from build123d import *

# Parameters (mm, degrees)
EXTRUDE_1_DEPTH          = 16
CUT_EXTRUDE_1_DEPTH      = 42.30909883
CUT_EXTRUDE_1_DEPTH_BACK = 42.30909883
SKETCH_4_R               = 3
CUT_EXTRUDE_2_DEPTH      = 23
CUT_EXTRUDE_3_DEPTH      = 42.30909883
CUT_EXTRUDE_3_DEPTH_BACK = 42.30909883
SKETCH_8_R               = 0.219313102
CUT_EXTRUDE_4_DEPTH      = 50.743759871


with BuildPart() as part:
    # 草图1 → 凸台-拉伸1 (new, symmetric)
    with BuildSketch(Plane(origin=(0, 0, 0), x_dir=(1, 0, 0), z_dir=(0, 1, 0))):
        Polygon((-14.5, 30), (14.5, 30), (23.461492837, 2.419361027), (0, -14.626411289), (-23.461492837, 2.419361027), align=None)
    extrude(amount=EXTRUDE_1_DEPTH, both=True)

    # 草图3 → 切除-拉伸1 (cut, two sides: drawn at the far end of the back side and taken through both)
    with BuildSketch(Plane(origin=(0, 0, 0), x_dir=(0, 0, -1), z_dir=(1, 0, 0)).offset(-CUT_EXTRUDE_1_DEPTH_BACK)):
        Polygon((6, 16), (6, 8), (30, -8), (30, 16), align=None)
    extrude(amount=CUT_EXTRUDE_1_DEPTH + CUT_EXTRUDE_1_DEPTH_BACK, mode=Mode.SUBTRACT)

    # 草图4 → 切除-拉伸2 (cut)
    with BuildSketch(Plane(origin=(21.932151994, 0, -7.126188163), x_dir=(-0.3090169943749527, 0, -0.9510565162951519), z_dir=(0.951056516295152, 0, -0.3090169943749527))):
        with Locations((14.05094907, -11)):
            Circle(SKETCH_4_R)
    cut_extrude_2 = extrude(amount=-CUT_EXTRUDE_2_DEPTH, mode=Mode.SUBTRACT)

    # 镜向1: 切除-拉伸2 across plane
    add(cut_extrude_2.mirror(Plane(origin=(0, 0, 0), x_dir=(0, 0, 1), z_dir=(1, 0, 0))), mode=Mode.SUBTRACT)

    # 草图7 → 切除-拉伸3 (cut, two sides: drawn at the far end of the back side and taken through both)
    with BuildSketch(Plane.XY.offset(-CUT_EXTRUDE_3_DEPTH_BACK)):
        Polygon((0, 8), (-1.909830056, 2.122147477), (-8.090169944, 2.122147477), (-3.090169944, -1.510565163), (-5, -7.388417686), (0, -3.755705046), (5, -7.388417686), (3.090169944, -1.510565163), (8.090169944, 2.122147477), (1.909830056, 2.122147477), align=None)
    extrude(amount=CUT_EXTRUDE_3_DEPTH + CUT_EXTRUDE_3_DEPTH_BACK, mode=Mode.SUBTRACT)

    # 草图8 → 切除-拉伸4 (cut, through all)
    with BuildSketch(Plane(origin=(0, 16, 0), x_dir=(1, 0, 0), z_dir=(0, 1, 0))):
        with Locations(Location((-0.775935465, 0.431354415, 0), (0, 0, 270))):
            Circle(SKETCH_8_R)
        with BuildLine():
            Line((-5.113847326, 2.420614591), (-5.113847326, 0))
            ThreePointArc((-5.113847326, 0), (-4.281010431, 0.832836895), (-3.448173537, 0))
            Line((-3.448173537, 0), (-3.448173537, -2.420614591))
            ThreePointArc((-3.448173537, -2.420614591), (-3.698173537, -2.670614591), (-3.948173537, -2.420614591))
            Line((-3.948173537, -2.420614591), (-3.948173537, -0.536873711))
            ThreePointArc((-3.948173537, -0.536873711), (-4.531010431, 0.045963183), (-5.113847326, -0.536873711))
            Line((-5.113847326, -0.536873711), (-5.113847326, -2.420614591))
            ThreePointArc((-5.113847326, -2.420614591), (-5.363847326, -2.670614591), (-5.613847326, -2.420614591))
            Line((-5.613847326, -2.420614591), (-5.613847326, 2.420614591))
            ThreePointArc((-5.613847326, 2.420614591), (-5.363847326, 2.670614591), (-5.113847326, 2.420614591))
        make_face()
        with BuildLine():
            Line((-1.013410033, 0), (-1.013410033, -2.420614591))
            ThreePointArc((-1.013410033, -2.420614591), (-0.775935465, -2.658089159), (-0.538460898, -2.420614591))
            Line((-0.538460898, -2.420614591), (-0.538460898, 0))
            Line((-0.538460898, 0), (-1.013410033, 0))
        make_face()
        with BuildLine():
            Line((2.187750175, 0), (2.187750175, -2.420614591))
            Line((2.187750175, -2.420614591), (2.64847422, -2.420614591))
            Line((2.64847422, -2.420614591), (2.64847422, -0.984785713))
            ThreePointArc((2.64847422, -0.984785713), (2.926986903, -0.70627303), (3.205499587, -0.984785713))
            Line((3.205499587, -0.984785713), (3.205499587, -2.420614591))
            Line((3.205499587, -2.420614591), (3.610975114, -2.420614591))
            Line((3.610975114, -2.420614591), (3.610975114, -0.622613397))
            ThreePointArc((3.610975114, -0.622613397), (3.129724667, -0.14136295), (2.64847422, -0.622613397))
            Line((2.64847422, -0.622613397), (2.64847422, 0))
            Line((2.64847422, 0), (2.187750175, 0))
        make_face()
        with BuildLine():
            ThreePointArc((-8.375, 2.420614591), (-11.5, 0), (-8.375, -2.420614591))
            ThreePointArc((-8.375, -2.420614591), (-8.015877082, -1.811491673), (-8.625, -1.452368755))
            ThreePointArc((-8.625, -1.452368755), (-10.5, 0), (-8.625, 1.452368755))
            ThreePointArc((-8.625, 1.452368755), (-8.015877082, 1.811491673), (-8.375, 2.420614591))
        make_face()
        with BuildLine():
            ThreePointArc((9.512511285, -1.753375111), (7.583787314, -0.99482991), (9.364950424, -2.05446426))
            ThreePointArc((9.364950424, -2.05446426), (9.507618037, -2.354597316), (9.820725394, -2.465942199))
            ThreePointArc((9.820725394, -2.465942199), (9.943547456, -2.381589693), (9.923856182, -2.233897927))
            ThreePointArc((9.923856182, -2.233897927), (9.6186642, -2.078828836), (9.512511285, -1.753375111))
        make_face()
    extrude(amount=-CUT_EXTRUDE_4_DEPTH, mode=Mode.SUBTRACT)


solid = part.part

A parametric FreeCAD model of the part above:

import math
import FreeCAD as App
import Part
import Sketcher

V = App.Vector
Q = App.Units.Quantity

doc = App.newDocument("Part")
params = doc.addObject("Spreadsheet::Sheet", "Params")
for row, (alias, value) in enumerate([
    ("sketch1_width", "29 mm"),
    ("pad1_length", "32 mm"),
    ("sketch2_width", "8 mm"),
    ("sketch2_width2", "24 mm"),
    ("sketch3_diameter", "6 mm"),
    ("pocket2_length", "23 mm"),
    ("sketch5_radius", "2.5 mm"),
    ("sketch5_radius2", "0.5 mm"),
    ("sketch5_radius3", "0.25 mm"),
], start=1):
    params.set(f"A{row}", alias)
    params.set(f"B{row}", "=" + value)
    params.setAlias(f"B{row}", alias)

body = doc.addObject("PartDesign::Body", "Body")

sketch1 = body.newObject("Sketcher::SketchObject", "Sketch")
sketch1.AttachmentSupport = (doc.getObject("XZ_Plane"), [""])
sketch1.MapMode = "FlatFace"
sketch1.addGeometry([
    Part.LineSegment(V(14, -30, 0), V(-14, -30, 0)),
    Part.LineSegment(V(-14, -30, 0), V(-23, -2, 0)),
    Part.LineSegment(V(-23, -2, 0), V(0, 15, 0)),
    Part.LineSegment(V(0, 15, 0), V(23, -2, 0)),
    Part.LineSegment(V(23, -2, 0), V(14, -30, 0)),
], False)
sketch1.addConstraint([
    Sketcher.Constraint("Coincident", 0, 2, 1, 1),
    Sketcher.Constraint("Coincident", 1, 2, 2, 1),
    Sketcher.Constraint("Coincident", 2, 2, 3, 1),
    Sketcher.Constraint("Coincident", 3, 2, 4, 1),
    Sketcher.Constraint("Coincident", 4, 2, 0, 1),
    Sketcher.Constraint("Horizontal", 0),
    Sketcher.Constraint("Symmetric", 1, 2, 3, 2, -2),
    Sketcher.Constraint("PointOnObject", 2, 2, -2),
    Sketcher.Constraint("Equal", 1, 2),
    Sketcher.Constraint("Equal", 3, 4),
    Sketcher.Constraint("DistanceX", 0, 2, 0, 1, Q("29 mm")),
    Sketcher.Constraint("Angle", 1, Q("108 deg")),
    Sketcher.Constraint("Angle", 2, Q("36 deg")),
    Sketcher.Constraint("DistanceY", 0, 2, -1, 1, Q("30 mm")),
])
sketch1.setExpression("Constraints[10]", "Params.sketch1_width")
pad1 = body.newObject("PartDesign::Pad", "Pad")
pad1.Profile = sketch1
pad1.setExpression("Length", "Params.pad1_length")
pad1.Midplane = True

sketch2 = body.newObject("Sketcher::SketchObject", "Sketch001")
sketch2.AttachmentSupport = (doc.getObject("YZ_Plane"), [""])
sketch2.MapMode = "FlatFace"
sketch2.addGeometry([
    Part.LineSegment(V(16, -6, 0), V(8, -6, 0)),
    Part.LineSegment(V(8, -6, 0), V(-8, -30, 0)),
    Part.LineSegment(V(-8, -30, 0), V(16, -30, 0)),
    Part.LineSegment(V(16, -30, 0), V(16, -6, 0)),
], False)
sketch2.addConstraint([
    Sketcher.Constraint("Coincident", 0, 2, 1, 1),
    Sketcher.Constraint("Coincident", 1, 2, 2, 1),
    Sketcher.Constraint("Coincident", 2, 2, 3, 1),
    Sketcher.Constraint("Coincident", 3, 2, 0, 1),
    Sketcher.Constraint("Horizontal", 0),
    Sketcher.Constraint("Horizontal", 2),
    Sketcher.Constraint("Vertical", 3),
    Sketcher.Constraint("Equal", 2, 3),
    Sketcher.Constraint("DistanceX", 0, 2, 0, 1, Q("8 mm")),
    Sketcher.Constraint("DistanceX", 2, 1, 2, 2, Q("24 mm")),
    Sketcher.Constraint("DistanceX", -1, 1, 0, 2, Q("8 mm")),
    Sketcher.Constraint("DistanceY", 0, 2, -1, 1, Q("6 mm")),
])
sketch2.setExpression("Constraints[8]", "Params.sketch2_width")
sketch2.setExpression("Constraints[9]", "Params.sketch2_width2")
pocket1 = body.newObject("PartDesign::Pocket", "Pocket")
pocket1.Profile = sketch2
pocket1.Type = "ThroughAll"
pocket1.Midplane = True

sketch3 = body.newObject("Sketcher::SketchObject", "Sketch002")
sketch3.Placement = App.Placement(V(21.932152, 0, -7.126188), App.Rotation(V(-0.309016994, 0, -0.951056516), V(0, 0.999999999, 0), V(0.951056516, 0, -0.309016994), "ZXY"))
sketch3.addGeometry(Part.Circle(V(14.1, -11, 0), V(0, 0, 1), 3), False)
sketch3.addConstraint([
    Sketcher.Constraint("Diameter", 0, Q("6 mm")),
    Sketcher.Constraint("DistanceY", 0, 3, -1, 1, Q("11 mm")),
    Sketcher.Constraint("DistanceX", -1, 1, 0, 3, Q("14.050949 mm")),
])
sketch3.setExpression("Constraints[0]", "Params.sketch3_diameter")
pocket2 = body.newObject("PartDesign::Pocket", "Pocket001")
pocket2.Profile = sketch3
pocket2.setExpression("Length", "Params.pocket2_length")
doc.recompute()

mirrored = body.newObject("PartDesign::Mirrored", "Mirrored")
mirrored.Originals = [pocket2]
mirrored.MirrorPlane = (doc.getObject("YZ_Plane"), [""])
body.Tip = mirrored

sketch4 = body.newObject("Sketcher::SketchObject", "Sketch003")
sketch4.AttachmentSupport = (doc.getObject("XY_Plane"), [""])
sketch4.MapMode = "FlatFace"
sketch4.addGeometry([
    Part.LineSegment(V(0, 8, 0), V(-2, 2, 0)),
    Part.LineSegment(V(-2, 2, 0), V(-8, 2, 0)),
    Part.LineSegment(V(-8, 2, 0), V(-3, -2, 0)),
    Part.LineSegment(V(-3, -2, 0), V(-5, -7, 0)),
    Part.LineSegment(V(-5, -7, 0), V(0, -4, 0)),
    Part.LineSegment(V(0, -4, 0), V(5, -7, 0)),
    Part.LineSegment(V(5, -7, 0), V(3, -2, 0)),
    Part.LineSegment(V(3, -2, 0), V(8, 2, 0)),
    Part.LineSegment(V(8, 2, 0), V(2, 2, 0)),
    Part.LineSegment(V(2, 2, 0), V(0, 8, 0)),
], False)
sketch4.addConstraint([
    Sketcher.Constraint("Coincident", 0, 2, 1, 1),
    Sketcher.Constraint("Coincident", 1, 2, 2, 1),
    Sketcher.Constraint("Coincident", 2, 2, 3, 1),
    Sketcher.Constraint("Coincident", 3, 2, 4, 1),
    Sketcher.Constraint("Coincident", 4, 2, 5, 1),
    Sketcher.Constraint("Coincident", 5, 2, 6, 1),
    Sketcher.Constraint("Coincident", 6, 2, 7, 1),
    Sketcher.Constraint("Coincident", 7, 2, 8, 1),
    Sketcher.Constraint("Coincident", 8, 2, 9, 1),
    Sketcher.Constraint("Coincident", 9, 2, 0, 1),
    Sketcher.Constraint("Horizontal", 1),
    Sketcher.Constraint("Horizontal", 8),
    Sketcher.Constraint("Symmetric", 3, 2, 5, 2, -2),
    Sketcher.Constraint("Symmetric", 2, 2, 6, 2, -2),
    Sketcher.Constraint("Symmetric", 1, 2, 7, 2, -2),
    Sketcher.Constraint("PointOnObject", 4, 2, -2),
    Sketcher.Constraint("PointOnObject", 9, 2, -2),
    Sketcher.Constraint("Parallel", 0, 3),
    Sketcher.Constraint("Parallel", 2, 5),
    Sketcher.Constraint("Parallel", 6, 9),
    Sketcher.Constraint("Equal", 0, 2),
    Sketcher.Constraint("Equal", 2, 3),
    Sketcher.Constraint("Equal", 3, 4),
    Sketcher.Constraint("Angle", 0, Q("-108 deg")),
    Sketcher.Constraint("Angle", 2, Q("-36 deg")),
    Sketcher.Constraint("DistanceX", 3, 2, -1, 1, Q("5 mm")),
    Sketcher.Constraint("DistanceY", -1, 1, 9, 2, Q("8 mm")),
])
pocket3 = body.newObject("PartDesign::Pocket", "Pocket002")
pocket3.Profile = sketch4
pocket3.Type = "ThroughAll"
pocket3.Midplane = True

sketch5 = body.newObject("Sketcher::SketchObject", "Sketch004")
sketch5.AttachmentSupport = (doc.getObject("XZ_Plane"), [""])
sketch5.MapMode = "FlatFace"
sketch5.AttachmentOffset = App.Placement(V(0, 0, -16), App.Rotation())
sketch5.addGeometry([
    Part.Circle(V(-0.78, -0.43, 0), V(0, 0, 1), 0.22),
    Part.LineSegment(V(-5.11, 0, 0), V(-5.11, -2.42, 0)),
    Part.ArcOfCircle(Part.Circle(V(-5.36, -2.42, 0), V(0, 0, 1), 0.25), math.radians(180), math.radians(360)),
    Part.LineSegment(V(-5.61, -2.42, 0), V(-5.61, 2.42, 0)),
    Part.ArcOfCircle(Part.Circle(V(-5.36, 2.42, 0), V(0, 0, 1), 0.25), math.radians(0), math.radians(180)),
    Part.LineSegment(V(-5.11, 2.42, 0), V(-5.11, 0.54, 0)),
    Part.ArcOfCircle(Part.Circle(V(-4.53, 0.54, 0), V(0, 0, 1), 0.58), math.radians(180), math.radians(360)),
    Part.LineSegment(V(-3.95, 0.54, 0), V(-3.95, 2.42, 0)),
    Part.ArcOfCircle(Part.Circle(V(-3.7, 2.42, 0), V(0, 0, 1), 0.25), math.radians(0), math.radians(180)),
    Part.LineSegment(V(-3.45, 2.42, 0), V(-3.45, 0, 0)),
    Part.ArcOfCircle(Part.Circle(V(-4.28, 0, 0), V(0, 0, 1), 0.83), math.radians(180), math.radians(360)),
    Part.LineSegment(V(-1.01, 0, 0), V(-1.01, 2.42, 0)),
    Part.ArcOfCircle(Part.Circle(V(-0.78, 2.42, 0), V(0, 0, 1), 0.24), math.radians(0), math.radians(180)),
    Part.LineSegment(V(-0.54, 2.42, 0), V(-0.54, 0, 0)),
    Part.LineSegment(V(-0.54, 0, 0), V(-1.01, 0, 0)),
    Part.LineSegment(V(2.19, 0, 0), V(2.19, 2.42, 0)),
    Part.LineSegment(V(2.19, 2.42, 0), V(2.65, 2.42, 0)),
    Part.LineSegment(V(2.65, 2.42, 0), V(2.65, 0.98, 0)),
    Part.ArcOfCircle(Part.Circle(V(2.93, 0.98, 0), V(0, 0, 1), 0.28), math.radians(180), math.radians(360)),
    Part.LineSegment(V(3.21, 0.98, 0), V(3.21, 2.42, 0)),
    Part.LineSegment(V(3.21, 2.42, 0), V(3.61, 2.42, 0)),
    Part.LineSegment(V(3.61, 2.42, 0), V(3.61, 0.62, 0)),
    Part.ArcOfCircle(Part.Circle(V(3.13, 0.62, 0), V(0, 0, 1), 0.48), math.radians(180), math.radians(360)),
    Part.LineSegment(V(2.65, 0.62, 0), V(2.65, 0, 0)),
    Part.LineSegment(V(2.65, 0, 0), V(2.19, 0, 0)),
    Part.ArcOfCircle(Part.Circle(V(-9, 0, 0), V(0, 0, 1), 2.5), math.radians(76), math.radians(284)),
    Part.ArcOfCircle(Part.Circle(V(-8.5, 1.94, 0), V(0, 0, 1), 0.5), math.radians(-104), math.radians(76)),
    Part.ArcOfCircle(Part.Circle(V(-9, 0, 0), V(0, 0, 1), 1.5), math.radians(76), math.radians(284)),
    Part.ArcOfCircle(Part.Circle(V(-8.5, -1.94, 0), V(0, 0, 1), 0.5), math.radians(-76), math.radians(104)),
    Part.ArcOfCircle(Part.Circle(V(8.52, 1.45, 0), V(0, 0, 1), 1.04), math.radians(35), math.radians(377)),
    Part.ArcOfCircle(Part.Circle(V(9.8, 2.03, 0), V(0, 0, 1), 0.43), math.radians(87), math.radians(177)),
    Part.ArcOfCircle(Part.Circle(V(9.81, 2.32, 0), V(0, 0, 1), 0.14), math.radians(-39), math.radians(87)),
    Part.ArcOfCircle(Part.Circle(V(9.96, 1.79, 0), V(0, 0, 1), 0.45), math.radians(94), math.radians(184)),
], False)
sketch5.addConstraint([
    Sketcher.Constraint("Tangent", 1, 2, 2, 2),
    Sketcher.Constraint("Tangent", 2, 1, 3, 1),
    Sketcher.Constraint("Tangent", 3, 2, 4, 2),
    Sketcher.Constraint("Tangent", 4, 1, 5, 1),
    Sketcher.Constraint("Tangent", 5, 2, 6, 1),
    Sketcher.Constraint("Tangent", 6, 2, 7, 1),
    Sketcher.Constraint("Tangent", 7, 2, 8, 2),
    Sketcher.Constraint("Tangent", 8, 1, 9, 1),
    Sketcher.Constraint("Tangent", 9, 2, 10, 2),
    Sketcher.Constraint("Tangent", 10, 1, 1, 1),
    Sketcher.Constraint("Tangent", 11, 2, 12, 2),
    Sketcher.Constraint("Tangent", 12, 1, 13, 1),
    Sketcher.Constraint("Coincident", 13, 2, 14, 1),
    Sketcher.Constraint("Coincident", 14, 2, 11, 1),
    Sketcher.Constraint("Coincident", 15, 2, 16, 1),
    Sketcher.Constraint("Coincident", 16, 2, 17, 1),
    Sketcher.Constraint("Tangent", 17, 2, 18, 1),
    Sketcher.Constraint("Tangent", 18, 2, 19, 1),
    Sketcher.Constraint("Coincident", 19, 2, 20, 1),
    Sketcher.Constraint("Coincident", 20, 2, 21, 1),
    Sketcher.Constraint("Tangent", 21, 2, 22, 2),
    Sketcher.Constraint("Tangent", 22, 1, 23, 1),
    Sketcher.Constraint("Coincident", 23, 2, 24, 1),
    Sketcher.Constraint("Coincident", 24, 2, 15, 1),
    Sketcher.Constraint("Tangent", 25, 1, 26, 2),
    Sketcher.Constraint("Tangent", 26, 1, 27, 1),
    Sketcher.Constraint("Tangent", 27, 2, 28, 2),
    Sketcher.Constraint("Tangent", 28, 1, 25, 2),
    Sketcher.Constraint("Coincident", 29, 1, 30, 2),
    Sketcher.Constraint("Tangent", 30, 1, 31, 2),
    Sketcher.Constraint("Coincident", 31, 1, 32, 1),
    Sketcher.Constraint("Coincident", 32, 2, 29, 2),
    Sketcher.Constraint("Vertical", 1),
    Sketcher.Constraint("Vertical", 3),
    Sketcher.Constraint("Vertical", 5),
    Sketcher.Constraint("Vertical", 7),
    Sketcher.Constraint("Vertical", 9),
    Sketcher.Constraint("Vertical", 11),
    Sketcher.Constraint("Vertical", 13),
    Sketcher.Constraint("Horizontal", 14),
    Sketcher.Constraint("Vertical", 15),
    Sketcher.Constraint("Horizontal", 16),
    Sketcher.Constraint("Vertical", 17),
    Sketcher.Constraint("Vertical", 19),
    Sketcher.Constraint("Horizontal", 20),
    Sketcher.Constraint("Vertical", 21),
    Sketcher.Constraint("Vertical", 23),
    Sketcher.Constraint("Horizontal", 24),
    Sketcher.Constraint("Coincident", 27, 3, 25, 3),
    Sketcher.Constraint("Equal", 2, 4),
    Sketcher.Constraint("Equal", 4, 8),
    Sketcher.Constraint("Symmetric", 26, 3, 28, 3, -1),
    Sketcher.Constraint("PointOnObject", 10, 3, -1),
    Sketcher.Constraint("PointOnObject", 13, 2, -1),
    Sketcher.Constraint("PointOnObject", 23, 2, -1),
    Sketcher.Constraint("Horizontal", 4, 3, 8, 3),
    Sketcher.Constraint("Horizontal", 8, 3, 12, 3),
    Sketcher.Constraint("Horizontal", 12, 1, 15, 2),
    Sketcher.Constraint("Horizontal", 16, 2, 19, 2),
    Sketcher.Constraint("Horizontal", 20, 2, 25, 1),
    Sketcher.Constraint("Horizontal", 29, 3, 26, 1),
    Sketcher.Constraint("Horizontal", 2, 1, 28, 1),
    Sketcher.Constraint("Vertical", 0, 3, 12, 3),
    Sketcher.Constraint("Vertical", 17, 2, 22, 1),
    Sketcher.Constraint("Radius", 25, Q("2.5 mm")),
    Sketcher.Constraint("Radius", 26, Q("0.5 mm")),
    Sketcher.Constraint("Radius", 2, Q("0.25 mm")),
    Sketcher.Constraint("DistanceX", 25, 3, -1, 1, Q("9 mm")),
    Sketcher.Constraint("DistanceX", 26, 3, -1, 1, Q("8.5 mm")),
    Sketcher.Constraint("DistanceY", 21, 2, 21, 1, Q("1.798001 mm")),
    Sketcher.Constraint("Radius", 22, Q("0.48125 mm")),
    Sketcher.Constraint("Radius", 29, Q("1.039671 mm")),
    Sketcher.Constraint("Radius", 30, Q("0.434192 mm")),
    Sketcher.Constraint("Diameter", 0, Q("0.438626 mm")),
    Sketcher.Constraint("Radius", 6, Q("0.582837 mm")),
    Sketcher.Constraint("Radius", 12, Q("0.237475 mm")),
    Sketcher.Constraint("Radius", 18, Q("0.278513 mm")),
    Sketcher.Constraint("Radius", 31, Q("0.142353 mm")),
    Sketcher.Constraint("Radius", 32, Q("0.447273 mm")),
    Sketcher.Constraint("DistanceY", 5, 2, 5, 1, Q("1.883741 mm")),
    Sketcher.Constraint("DistanceY", 17, 2, 17, 1, Q("1.435829 mm")),
    Sketcher.Constraint("DistanceX", -1, 1, 18, 2, Q("3.2055 mm")),
    Sketcher.Constraint("DistanceX", 8, 3, 22, 3, Q("6.827898 mm")),
    Sketcher.Constraint("DistanceY", 30, 3, 12, 3, Q("0.388299 mm")),
    Sketcher.Constraint("DistanceX", 12, 3, 31, 3, Q("10.589399 mm")),
    Sketcher.Constraint("DistanceY", 32, 3, 29, 1, Q("0.2665 mm")),
    Sketcher.Constraint("DistanceY", 32, 2, 31, 3, Q("0.5704 mm")),
    Sketcher.Constraint("DistanceX", 16, 1, 16, 2, Q("0.460724 mm")),
    Sketcher.Constraint("DistanceX", -1, 1, 29, 3, Q("8.517368 mm")),
    Sketcher.Constraint("DistanceX", 11, 2, -1, 1, Q("1.01341 mm")),
    Sketcher.Constraint("DistanceX", -1, 1, 29, 1, Q("9.36495 mm")),
    Sketcher.Constraint("DistanceY", 2, 3, 0, 3, Q("1.98926 mm")),
])
sketch5.setExpression("Constraints[64]", "Params.sketch5_radius")
sketch5.setExpression("Constraints[65]", "Params.sketch5_radius2")
sketch5.setExpression("Constraints[66]", "Params.sketch5_radius3")
pocket4 = body.newObject("PartDesign::Pocket", "Pocket003")
pocket4.Profile = sketch5
pocket4.Type = "ThroughAll"
pocket4.Reversed = True

doc.recompute()
